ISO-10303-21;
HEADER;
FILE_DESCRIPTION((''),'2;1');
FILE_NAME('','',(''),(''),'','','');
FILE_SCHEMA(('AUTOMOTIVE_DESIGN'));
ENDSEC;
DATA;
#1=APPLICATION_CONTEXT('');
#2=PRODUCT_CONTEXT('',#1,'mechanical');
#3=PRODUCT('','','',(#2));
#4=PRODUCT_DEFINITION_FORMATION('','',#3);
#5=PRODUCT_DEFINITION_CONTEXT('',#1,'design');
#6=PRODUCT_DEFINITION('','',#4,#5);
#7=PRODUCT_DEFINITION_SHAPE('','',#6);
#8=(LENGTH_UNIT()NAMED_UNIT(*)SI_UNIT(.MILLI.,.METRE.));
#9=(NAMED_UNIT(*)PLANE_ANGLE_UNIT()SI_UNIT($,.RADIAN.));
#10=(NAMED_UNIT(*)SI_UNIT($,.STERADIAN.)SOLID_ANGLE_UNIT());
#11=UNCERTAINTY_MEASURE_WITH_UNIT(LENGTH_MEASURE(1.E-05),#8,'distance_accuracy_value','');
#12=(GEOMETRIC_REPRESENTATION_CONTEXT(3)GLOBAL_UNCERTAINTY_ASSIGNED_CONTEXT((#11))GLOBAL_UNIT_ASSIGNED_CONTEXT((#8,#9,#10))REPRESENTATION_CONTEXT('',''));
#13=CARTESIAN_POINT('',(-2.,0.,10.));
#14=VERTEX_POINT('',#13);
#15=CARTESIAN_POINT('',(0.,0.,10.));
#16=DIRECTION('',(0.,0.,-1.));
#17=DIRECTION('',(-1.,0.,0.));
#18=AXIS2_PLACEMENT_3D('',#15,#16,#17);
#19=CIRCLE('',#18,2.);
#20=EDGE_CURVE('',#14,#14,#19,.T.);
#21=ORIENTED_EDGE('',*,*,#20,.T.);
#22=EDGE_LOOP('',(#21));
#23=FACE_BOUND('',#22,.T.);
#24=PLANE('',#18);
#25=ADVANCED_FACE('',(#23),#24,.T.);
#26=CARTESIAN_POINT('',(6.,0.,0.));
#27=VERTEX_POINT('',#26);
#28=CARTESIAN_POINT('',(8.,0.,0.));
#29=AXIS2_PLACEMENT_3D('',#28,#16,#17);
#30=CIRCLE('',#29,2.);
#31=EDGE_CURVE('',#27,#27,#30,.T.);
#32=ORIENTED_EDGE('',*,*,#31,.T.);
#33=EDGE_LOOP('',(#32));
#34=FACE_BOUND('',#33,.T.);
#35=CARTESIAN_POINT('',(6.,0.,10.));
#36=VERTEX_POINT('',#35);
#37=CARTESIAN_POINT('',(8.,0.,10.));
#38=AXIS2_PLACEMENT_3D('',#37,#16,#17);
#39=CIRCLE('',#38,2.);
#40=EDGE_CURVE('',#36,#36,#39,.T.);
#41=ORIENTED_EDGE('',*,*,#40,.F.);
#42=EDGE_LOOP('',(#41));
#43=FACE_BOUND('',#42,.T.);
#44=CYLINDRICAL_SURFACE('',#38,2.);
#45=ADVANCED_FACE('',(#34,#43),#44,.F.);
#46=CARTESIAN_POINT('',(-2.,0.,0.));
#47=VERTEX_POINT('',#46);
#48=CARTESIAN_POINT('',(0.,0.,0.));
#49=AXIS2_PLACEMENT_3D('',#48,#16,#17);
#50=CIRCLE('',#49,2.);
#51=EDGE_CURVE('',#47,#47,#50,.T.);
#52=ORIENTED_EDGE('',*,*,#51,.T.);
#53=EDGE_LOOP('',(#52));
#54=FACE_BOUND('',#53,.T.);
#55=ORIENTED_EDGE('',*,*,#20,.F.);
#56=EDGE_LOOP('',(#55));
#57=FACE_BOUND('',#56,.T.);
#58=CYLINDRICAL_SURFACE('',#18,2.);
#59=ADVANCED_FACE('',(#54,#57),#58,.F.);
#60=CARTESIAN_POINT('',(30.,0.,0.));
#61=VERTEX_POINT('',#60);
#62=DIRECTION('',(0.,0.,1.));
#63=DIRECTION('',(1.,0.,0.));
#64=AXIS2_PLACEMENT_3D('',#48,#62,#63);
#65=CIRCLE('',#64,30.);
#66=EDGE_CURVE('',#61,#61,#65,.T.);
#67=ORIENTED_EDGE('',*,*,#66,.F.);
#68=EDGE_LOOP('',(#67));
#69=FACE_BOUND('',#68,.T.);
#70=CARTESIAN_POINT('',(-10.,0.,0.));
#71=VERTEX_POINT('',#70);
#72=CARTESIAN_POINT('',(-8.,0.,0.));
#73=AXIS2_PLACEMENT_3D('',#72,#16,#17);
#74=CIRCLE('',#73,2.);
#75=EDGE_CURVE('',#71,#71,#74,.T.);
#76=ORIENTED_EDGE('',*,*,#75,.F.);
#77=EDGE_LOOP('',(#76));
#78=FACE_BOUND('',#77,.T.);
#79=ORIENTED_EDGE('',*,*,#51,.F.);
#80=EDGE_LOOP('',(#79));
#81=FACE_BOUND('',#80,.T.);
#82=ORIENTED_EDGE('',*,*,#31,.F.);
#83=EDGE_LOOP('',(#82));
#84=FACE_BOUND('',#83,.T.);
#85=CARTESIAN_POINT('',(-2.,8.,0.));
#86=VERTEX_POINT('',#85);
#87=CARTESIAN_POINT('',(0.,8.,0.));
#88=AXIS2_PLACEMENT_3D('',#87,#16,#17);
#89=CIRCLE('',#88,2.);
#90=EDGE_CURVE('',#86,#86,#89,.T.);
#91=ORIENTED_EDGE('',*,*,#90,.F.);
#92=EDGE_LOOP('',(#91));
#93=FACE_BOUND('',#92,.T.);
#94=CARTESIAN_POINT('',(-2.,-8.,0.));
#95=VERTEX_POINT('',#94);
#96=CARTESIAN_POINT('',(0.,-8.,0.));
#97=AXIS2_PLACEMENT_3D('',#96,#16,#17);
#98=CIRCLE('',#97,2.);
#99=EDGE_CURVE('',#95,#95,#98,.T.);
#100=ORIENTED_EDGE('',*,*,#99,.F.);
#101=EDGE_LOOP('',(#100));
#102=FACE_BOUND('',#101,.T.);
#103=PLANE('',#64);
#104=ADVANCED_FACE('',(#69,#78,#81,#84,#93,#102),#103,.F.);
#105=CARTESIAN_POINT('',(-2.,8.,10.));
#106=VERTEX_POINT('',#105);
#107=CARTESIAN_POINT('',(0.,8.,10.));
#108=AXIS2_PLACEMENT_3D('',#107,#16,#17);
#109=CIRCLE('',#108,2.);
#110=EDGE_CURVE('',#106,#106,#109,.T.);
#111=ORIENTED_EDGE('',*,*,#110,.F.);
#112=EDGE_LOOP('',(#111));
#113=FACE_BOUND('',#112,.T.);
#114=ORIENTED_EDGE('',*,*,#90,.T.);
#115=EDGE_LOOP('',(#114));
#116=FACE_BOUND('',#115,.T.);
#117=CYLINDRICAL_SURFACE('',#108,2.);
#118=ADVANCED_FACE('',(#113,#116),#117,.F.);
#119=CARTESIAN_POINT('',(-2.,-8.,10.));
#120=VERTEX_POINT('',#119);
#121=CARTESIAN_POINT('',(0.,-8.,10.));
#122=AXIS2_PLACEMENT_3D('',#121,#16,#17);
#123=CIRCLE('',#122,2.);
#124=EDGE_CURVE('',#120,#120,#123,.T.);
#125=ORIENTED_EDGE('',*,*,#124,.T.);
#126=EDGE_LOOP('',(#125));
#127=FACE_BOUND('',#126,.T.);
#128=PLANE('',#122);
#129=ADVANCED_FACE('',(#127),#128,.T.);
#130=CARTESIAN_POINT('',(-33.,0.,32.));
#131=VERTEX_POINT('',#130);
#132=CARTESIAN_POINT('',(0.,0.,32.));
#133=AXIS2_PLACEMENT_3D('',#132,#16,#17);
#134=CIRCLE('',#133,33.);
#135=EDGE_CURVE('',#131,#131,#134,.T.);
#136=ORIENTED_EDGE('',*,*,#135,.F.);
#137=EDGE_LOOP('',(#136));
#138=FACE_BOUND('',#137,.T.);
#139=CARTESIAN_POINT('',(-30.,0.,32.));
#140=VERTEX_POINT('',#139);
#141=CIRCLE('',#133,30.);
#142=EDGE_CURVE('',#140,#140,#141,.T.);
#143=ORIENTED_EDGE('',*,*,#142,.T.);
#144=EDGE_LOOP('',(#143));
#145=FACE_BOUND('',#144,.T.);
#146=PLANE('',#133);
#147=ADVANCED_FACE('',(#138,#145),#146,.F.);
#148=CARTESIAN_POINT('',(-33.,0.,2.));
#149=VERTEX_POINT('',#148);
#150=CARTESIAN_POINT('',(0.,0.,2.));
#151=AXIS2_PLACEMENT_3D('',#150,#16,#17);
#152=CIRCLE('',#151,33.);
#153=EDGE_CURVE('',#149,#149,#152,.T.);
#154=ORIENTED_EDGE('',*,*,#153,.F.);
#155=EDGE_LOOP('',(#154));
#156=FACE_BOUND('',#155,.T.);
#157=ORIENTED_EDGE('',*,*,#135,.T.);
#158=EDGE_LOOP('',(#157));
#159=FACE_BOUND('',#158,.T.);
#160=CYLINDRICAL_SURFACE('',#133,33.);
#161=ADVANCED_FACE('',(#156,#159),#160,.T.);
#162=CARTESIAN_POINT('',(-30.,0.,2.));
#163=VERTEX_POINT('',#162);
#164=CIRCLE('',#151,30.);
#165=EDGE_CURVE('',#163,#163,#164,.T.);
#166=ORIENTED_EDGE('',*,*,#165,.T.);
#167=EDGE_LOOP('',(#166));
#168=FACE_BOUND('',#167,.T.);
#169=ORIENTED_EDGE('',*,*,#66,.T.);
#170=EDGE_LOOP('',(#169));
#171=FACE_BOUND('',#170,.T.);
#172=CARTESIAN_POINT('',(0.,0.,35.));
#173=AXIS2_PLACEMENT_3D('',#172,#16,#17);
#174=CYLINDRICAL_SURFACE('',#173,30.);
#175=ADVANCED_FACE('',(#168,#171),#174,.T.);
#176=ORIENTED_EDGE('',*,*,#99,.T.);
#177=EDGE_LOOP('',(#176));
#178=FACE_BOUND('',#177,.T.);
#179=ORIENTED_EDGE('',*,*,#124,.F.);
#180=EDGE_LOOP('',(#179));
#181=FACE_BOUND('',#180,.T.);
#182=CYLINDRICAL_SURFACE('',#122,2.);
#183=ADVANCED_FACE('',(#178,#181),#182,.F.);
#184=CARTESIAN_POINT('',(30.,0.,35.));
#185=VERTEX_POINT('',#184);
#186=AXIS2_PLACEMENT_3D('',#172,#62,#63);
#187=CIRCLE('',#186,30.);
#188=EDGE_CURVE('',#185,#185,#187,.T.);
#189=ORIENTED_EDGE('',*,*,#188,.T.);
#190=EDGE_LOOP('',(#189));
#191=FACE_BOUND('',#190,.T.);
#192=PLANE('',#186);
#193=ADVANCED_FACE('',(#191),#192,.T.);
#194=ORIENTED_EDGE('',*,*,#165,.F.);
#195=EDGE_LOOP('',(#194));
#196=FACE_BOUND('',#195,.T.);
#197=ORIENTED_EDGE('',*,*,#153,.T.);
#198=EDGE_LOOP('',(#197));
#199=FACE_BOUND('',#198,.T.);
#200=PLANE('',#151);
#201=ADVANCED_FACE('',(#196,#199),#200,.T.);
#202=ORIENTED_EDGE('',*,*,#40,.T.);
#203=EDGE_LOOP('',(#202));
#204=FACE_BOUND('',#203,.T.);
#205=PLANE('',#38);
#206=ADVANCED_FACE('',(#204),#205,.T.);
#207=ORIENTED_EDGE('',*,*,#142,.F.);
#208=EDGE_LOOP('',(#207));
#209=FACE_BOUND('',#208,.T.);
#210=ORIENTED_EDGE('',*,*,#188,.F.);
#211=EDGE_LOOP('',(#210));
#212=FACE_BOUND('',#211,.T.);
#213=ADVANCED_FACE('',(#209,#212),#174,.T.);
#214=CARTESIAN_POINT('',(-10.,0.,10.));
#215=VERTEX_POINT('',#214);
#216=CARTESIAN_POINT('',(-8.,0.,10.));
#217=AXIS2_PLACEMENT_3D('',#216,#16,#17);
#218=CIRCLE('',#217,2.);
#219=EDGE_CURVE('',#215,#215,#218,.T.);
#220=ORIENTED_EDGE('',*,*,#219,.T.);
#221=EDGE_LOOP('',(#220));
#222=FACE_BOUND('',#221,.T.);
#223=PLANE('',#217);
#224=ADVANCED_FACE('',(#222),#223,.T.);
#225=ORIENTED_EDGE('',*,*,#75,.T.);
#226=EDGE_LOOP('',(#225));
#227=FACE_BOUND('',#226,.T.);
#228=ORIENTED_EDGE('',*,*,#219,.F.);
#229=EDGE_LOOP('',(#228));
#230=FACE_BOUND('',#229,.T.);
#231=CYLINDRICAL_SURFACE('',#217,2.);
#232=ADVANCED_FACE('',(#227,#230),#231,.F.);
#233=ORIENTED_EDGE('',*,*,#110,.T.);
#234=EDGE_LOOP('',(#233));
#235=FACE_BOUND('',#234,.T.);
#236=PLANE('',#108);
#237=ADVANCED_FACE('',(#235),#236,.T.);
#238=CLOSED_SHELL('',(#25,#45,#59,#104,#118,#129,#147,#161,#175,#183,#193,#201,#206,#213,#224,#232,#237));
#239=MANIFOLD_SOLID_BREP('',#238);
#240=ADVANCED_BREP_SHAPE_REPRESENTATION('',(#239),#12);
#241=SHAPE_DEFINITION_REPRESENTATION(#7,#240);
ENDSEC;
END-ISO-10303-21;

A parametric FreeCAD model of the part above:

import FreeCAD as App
import Part
import Sketcher
from FreeCAD import Vector
Q = App.Units.Quantity

doc = App.newDocument("Part")
params = doc.addObject("Spreadsheet::Sheet", "Params")
for row, (alias, value) in enumerate([
    ("sketch1_diameter", "60 mm"),
    ("pad1_length", "35 mm"),
    ("sketch2_diameter", "4 mm"),
    ("pocket1_length", "10 mm"),
    ("sketch3_diameter", "66 mm"),
    ("sketch3_diameter2", "60 mm"),
    ("pad2_length", "30 mm"),
], start=1):
    params.set(f"A{row}", alias)
    params.set(f"B{row}", "=" + value)
    params.setAlias(f"B{row}", alias)

body = doc.addObject("PartDesign::Body", "Body")

# Sketch on XY plane
sketch1 = body.newObject("Sketcher::SketchObject", "Sketch")
sketch1.AttachmentSupport = (doc.getObject("XY_Plane"), [""])
sketch1.MapMode = "FlatFace"
sketch1.addGeometry(Part.Circle(Vector(0, 0, 0), Vector(0, 0, 1), 30), False)
sketch1.addConstraint([
    Sketcher.Constraint("Coincident", 0, 3, -1, 1),
    Sketcher.Constraint("Diameter", 0, Q("60 mm")),
])
sketch1.setExpression("Constraints[1]", "Params.sketch1_diameter")
pad1 = body.newObject("PartDesign::Pad", "Pad")
pad1.Profile = sketch1
pad1.setExpression("Length", "Params.pad1_length")

# Sketch on XY plane
sketch2 = body.newObject("Sketcher::SketchObject", "Sketch001")
sketch2.AttachmentSupport = (doc.getObject("XY_Plane"), [""])
sketch2.MapMode = "FlatFace"
sketch2.addGeometry([
    Part.Circle(Vector(0, 8, 0), Vector(0, 0, 1), 2),  # 0
    Part.Circle(Vector(-8, 0, 0), Vector(0, 0, 1), 2),  # 1
    Part.Circle(Vector(0, -8, 0), Vector(0, 0, 1), 2),  # 2
    Part.Circle(Vector(8, 0, 0), Vector(0, 0, 1), 2),  # 3
    Part.Circle(Vector(0, 0, 0), Vector(0, 0, 1), 2),  # 4
], False)
sketch2.addConstraint([
    Sketcher.Constraint("Coincident", 4, 3, -1, 1),
    Sketcher.Constraint("Equal", 0, 1),
    Sketcher.Constraint("Equal", 1, 2),
    Sketcher.Constraint("Equal", 2, 3),
    Sketcher.Constraint("Equal", 3, 4),
    Sketcher.Constraint("Symmetric", 0, 3, 2, 3, -1, 1),
    Sketcher.Constraint("Symmetric", 1, 3, 3, 3, -1, 1),
    Sketcher.Constraint("PointOnObject", 0, 3, -2),
    Sketcher.Constraint("PointOnObject", 1, 3, -1),
    Sketcher.Constraint("Diameter", 0, Q("4 mm")),
    Sketcher.Constraint("DistanceY", -1, 1, 0, 3, Q("8 mm")),
    Sketcher.Constraint("DistanceX", 1, 3, -1, 1, Q("8 mm")),
])
sketch2.setExpression("Constraints[9]", "Params.sketch2_diameter")
pocket1 = body.newObject("PartDesign::Pocket", "Pocket")
pocket1.Profile = sketch2
pocket1.setExpression("Length", "Params.pocket1_length")
pocket1.Reversed = True

# Sketch on XY plane
sketch3 = body.newObject("Sketcher::SketchObject", "Sketch002")
sketch3.AttachmentSupport = (doc.getObject("XY_Plane"), [""])
sketch3.MapMode = "FlatFace"
sketch3.AttachmentOffset = App.Placement(Vector(0, 0, 2), App.Rotation())
sketch3.addGeometry([
    Part.Circle(Vector(0, 0, 0), Vector(0, 0, 1), 33),
    Part.Circle(Vector(0, 0, 0), Vector(0, 0, 1), 30),
], False)
sketch3.addConstraint([
    Sketcher.Constraint("Coincident", 0, 3, -1, 1),
    Sketcher.Constraint("Coincident", 1, 3, -1, 1),
    Sketcher.Constraint("Diameter", 0, Q("66 mm")),
    Sketcher.Constraint("Diameter", 1, Q("60 mm")),
])
sketch3.setExpression("Constraints[2]", "Params.sketch3_diameter")
sketch3.setExpression("Constraints[3]", "Params.sketch3_diameter2")
pad2 = body.newObject("PartDesign::Pad", "Pad001")
pad2.Profile = sketch3
pad2.setExpression("Length", "Params.pad2_length")

doc.recompute()
